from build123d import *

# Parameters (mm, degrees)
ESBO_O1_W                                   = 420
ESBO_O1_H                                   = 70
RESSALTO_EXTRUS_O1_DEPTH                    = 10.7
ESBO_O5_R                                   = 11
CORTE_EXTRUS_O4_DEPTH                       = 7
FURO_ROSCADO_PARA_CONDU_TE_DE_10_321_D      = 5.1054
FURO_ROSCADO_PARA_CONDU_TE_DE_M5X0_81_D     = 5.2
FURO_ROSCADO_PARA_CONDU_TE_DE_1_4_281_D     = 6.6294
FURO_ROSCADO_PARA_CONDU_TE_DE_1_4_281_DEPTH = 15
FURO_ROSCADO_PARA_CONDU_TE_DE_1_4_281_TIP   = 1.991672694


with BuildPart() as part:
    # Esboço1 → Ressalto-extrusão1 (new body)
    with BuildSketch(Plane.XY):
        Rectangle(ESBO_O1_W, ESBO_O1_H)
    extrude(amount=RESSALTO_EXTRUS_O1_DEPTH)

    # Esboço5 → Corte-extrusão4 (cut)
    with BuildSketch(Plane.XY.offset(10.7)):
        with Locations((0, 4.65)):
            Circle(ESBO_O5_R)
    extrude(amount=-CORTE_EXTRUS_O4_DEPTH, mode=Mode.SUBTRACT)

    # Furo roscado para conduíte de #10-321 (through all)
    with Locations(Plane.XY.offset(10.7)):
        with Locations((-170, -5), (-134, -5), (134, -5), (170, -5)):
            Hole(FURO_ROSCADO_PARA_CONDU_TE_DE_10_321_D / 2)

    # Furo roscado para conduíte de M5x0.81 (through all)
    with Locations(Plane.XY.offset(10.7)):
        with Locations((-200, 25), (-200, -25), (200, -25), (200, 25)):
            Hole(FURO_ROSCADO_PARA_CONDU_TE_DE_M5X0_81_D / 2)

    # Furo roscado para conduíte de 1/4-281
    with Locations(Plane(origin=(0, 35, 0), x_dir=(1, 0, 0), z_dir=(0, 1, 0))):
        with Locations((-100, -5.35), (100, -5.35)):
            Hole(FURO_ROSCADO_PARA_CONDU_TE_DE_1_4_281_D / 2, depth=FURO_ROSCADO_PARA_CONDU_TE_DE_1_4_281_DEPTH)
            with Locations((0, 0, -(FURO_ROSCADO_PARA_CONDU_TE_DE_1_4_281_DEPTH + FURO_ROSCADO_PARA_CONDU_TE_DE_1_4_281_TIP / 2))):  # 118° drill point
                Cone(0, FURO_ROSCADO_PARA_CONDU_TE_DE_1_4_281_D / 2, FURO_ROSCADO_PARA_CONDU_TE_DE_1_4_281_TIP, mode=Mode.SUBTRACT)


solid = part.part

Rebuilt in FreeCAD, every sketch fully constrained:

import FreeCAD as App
import Part
import Sketcher

doc = App.newDocument("Part")
body = doc.addObject("PartDesign::Body", "Body")

# Sketch on XY plane
sketch1 = body.newObject("Sketcher::SketchObject", "Sketch")
sketch1.AttachmentSupport = (doc.getObject("XY_Plane"), [""])
sketch1.MapMode = "FlatFace"
sketch1.addGeometry([
    Part.LineSegment(App.Vector(-210, 35, 0), App.Vector(-210, -35, 0)),
    Part.LineSegment(App.Vector(-210, -35, 0), App.Vector(210, -35, 0)),
    Part.LineSegment(App.Vector(210, -35, 0), App.Vector(210, 35, 0)),
    Part.LineSegment(App.Vector(210, 35, 0), App.Vector(-210, 35, 0)),
], False)
sketch1.addConstraint([
    Sketcher.Constraint("Coincident", 0, 2, 1, 1),
    Sketcher.Constraint("Coincident", 1, 2, 2, 1),
    Sketcher.Constraint("Coincident", 2, 2, 3, 1),
    Sketcher.Constraint("Coincident", 3, 2, 0, 1),
    Sketcher.Constraint("Vertical", 0),
    Sketcher.Constraint("Horizontal", 1),
    Sketcher.Constraint("Vertical", 2),
    Sketcher.Constraint("Horizontal", 3),
    Sketcher.Constraint("Symmetric", 0, 2, 2, 2, -1, 1),
    Sketcher.Constraint("DistanceX", 1, 1, 1, 2, 420.0),
    Sketcher.Constraint("DistanceY", 0, 2, 0, 1, 70.0),
])
pad1 = body.newObject("PartDesign::Pad", "Pad")
pad1.Profile = sketch1
pad1.Length = 10.7

# Sketch on XY plane
sketch2 = body.newObject("Sketcher::SketchObject", "Sketch001")
sketch2.AttachmentSupport = (doc.getObject("XY_Plane"), [""])
sketch2.MapMode = "FlatFace"
sketch2.AttachmentOffset = App.Placement(App.Vector(0, 0, 10.7), App.Rotation())
sketch2.addGeometry(Part.Circle(App.Vector(0, 5, 0), App.Vector(0, 0, 1), 11), False)
sketch2.addConstraint([
    Sketcher.Constraint("PointOnObject", 0, 3, -2),
    Sketcher.Constraint("Diameter", 0, 22.0),
    Sketcher.Constraint("DistanceY", -1, 1, 0, 3, 4.65),
])
pocket1 = body.newObject("PartDesign::Pocket", "Pocket")
pocket1.Profile = sketch2
pocket1.Length = 7

# Sketch on XY plane
sketch3 = body.newObject("Sketcher::SketchObject", "Sketch002")
sketch3.AttachmentSupport = (doc.getObject("XY_Plane"), [""])
sketch3.MapMode = "FlatFace"
sketch3.AttachmentOffset = App.Placement(App.Vector(0, 0, 10.7), App.Rotation())
sketch3.addGeometry([
    Part.Circle(App.Vector(-170, -5, 0), App.Vector(0, 0, 1), 2.6),
    Part.Circle(App.Vector(-134, -5, 0), App.Vector(0, 0, 1), 2.6),
    Part.Circle(App.Vector(134, -5, 0), App.Vector(0, 0, 1), 2.6),
    Part.Circle(App.Vector(170, -5, 0), App.Vector(0, 0, 1), 2.6),
], False)
sketch3.addConstraint([
    Sketcher.Constraint("Equal", 0, 1),
    Sketcher.Constraint("Equal", 1, 2),
    Sketcher.Constraint("Equal", 2, 3),
    Sketcher.Constraint("Symmetric", 1, 3, 2, 3, -2),
    Sketcher.Constraint("Symmetric", 0, 3, 3, 3, -2),
    Sketcher.Constraint("Horizontal", 0, 3, 1, 3),
    Sketcher.Constraint("DistanceX", 0, 3, -1, 1, 170.0),
    Sketcher.Constraint("DistanceY", 0, 3, -1, 1, 5.0),
    Sketcher.Constraint("DistanceX", 1, 3, -1, 1, 134.0),
    Sketcher.Constraint("Diameter", 0, 5.1054),
])
doc.recompute()
hole = body.newObject("PartDesign::Hole", "Hole")
hole.Profile = sketch3
hole.ThreadType = "None"
hole.Diameter = 5.1054
hole.DepthType = "ThroughAll"

# Sketch on XY plane
sketch4 = body.newObject("Sketcher::SketchObject", "Sketch003")
sketch4.AttachmentSupport = (doc.getObject("XY_Plane"), [""])
sketch4.MapMode = "FlatFace"
sketch4.AttachmentOffset = App.Placement(App.Vector(0, 0, 10.7), App.Rotation())
sketch4.addGeometry([
    Part.Circle(App.Vector(-200, 25, 0), App.Vector(0, 0, 1), 2.6),
    Part.Circle(App.Vector(-200, -25, 0), App.Vector(0, 0, 1), 2.6),
    Part.Circle(App.Vector(200, -25, 0), App.Vector(0, 0, 1), 2.6),
    Part.Circle(App.Vector(200, 25, 0), App.Vector(0, 0, 1), 2.6),
], False)
sketch4.addConstraint([
    Sketcher.Constraint("Equal", 0, 1),
    Sketcher.Constraint("Equal", 1, 2),
    Sketcher.Constraint("Equal", 2, 3),
    Sketcher.Constraint("Symmetric", 0, 3, 2, 3, -1, 1),
    Sketcher.Constraint("Symmetric", 1, 3, 3, 3, -1, 1),
    Sketcher.Constraint("Symmetric", 1, 3, 2, 3, -2),
    Sketcher.Constraint("Diameter", 0, 5.2),
    Sketcher.Constraint("DistanceX", 0, 3, -1, 1, 200.0),
    Sketcher.Constraint("DistanceY", -1, 1, 0, 3, 25.0),
])
doc.recompute()
hole2 = body.newObject("PartDesign::Hole", "Hole001")
hole2.Profile = sketch4
hole2.ThreadType = "None"
hole2.Diameter = 5.2
hole2.DepthType = "ThroughAll"

# Sketch on XZ plane
sketch5 = body.newObject("Sketcher::SketchObject", "Sketch004")
sketch5.AttachmentSupport = (doc.getObject("XZ_Plane"), [""])
sketch5.MapMode = "FlatFace"
sketch5.AttachmentOffset = App.Placement(App.Vector(0, 0, -35), App.Rotation())
sketch5.addGeometry([
    Part.Circle(App.Vector(-100, 5.3, 0), App.Vector(0, 0, 1), 3.3),
    Part.Circle(App.Vector(100, 5.3, 0), App.Vector(0, 0, 1), 3.3),
], False)
sketch5.addConstraint([
    Sketcher.Constraint("Equal", 0, 1),
    Sketcher.Constraint("Symmetric", 0, 3, 1, 3, -2),
    Sketcher.Constraint("DistanceX", 0, 3, -1, 1, 100.0),
    Sketcher.Constraint("Diameter", 0, 6.6294),
    Sketcher.Constraint("DistanceY", -1, 1, 0, 3, 5.35),
])
doc.recompute()
hole3 = body.newObject("PartDesign::Hole", "Hole002")
hole3.Profile = sketch5
hole3.ThreadType = "None"
hole3.Diameter = 6.6294
hole3.DepthType = "Dimension"
hole3.Depth = 15
hole3.DrillPoint = "Angled"
hole3.DrillPointAngle = 118
hole3.Reversed = True

doc.recompute()
